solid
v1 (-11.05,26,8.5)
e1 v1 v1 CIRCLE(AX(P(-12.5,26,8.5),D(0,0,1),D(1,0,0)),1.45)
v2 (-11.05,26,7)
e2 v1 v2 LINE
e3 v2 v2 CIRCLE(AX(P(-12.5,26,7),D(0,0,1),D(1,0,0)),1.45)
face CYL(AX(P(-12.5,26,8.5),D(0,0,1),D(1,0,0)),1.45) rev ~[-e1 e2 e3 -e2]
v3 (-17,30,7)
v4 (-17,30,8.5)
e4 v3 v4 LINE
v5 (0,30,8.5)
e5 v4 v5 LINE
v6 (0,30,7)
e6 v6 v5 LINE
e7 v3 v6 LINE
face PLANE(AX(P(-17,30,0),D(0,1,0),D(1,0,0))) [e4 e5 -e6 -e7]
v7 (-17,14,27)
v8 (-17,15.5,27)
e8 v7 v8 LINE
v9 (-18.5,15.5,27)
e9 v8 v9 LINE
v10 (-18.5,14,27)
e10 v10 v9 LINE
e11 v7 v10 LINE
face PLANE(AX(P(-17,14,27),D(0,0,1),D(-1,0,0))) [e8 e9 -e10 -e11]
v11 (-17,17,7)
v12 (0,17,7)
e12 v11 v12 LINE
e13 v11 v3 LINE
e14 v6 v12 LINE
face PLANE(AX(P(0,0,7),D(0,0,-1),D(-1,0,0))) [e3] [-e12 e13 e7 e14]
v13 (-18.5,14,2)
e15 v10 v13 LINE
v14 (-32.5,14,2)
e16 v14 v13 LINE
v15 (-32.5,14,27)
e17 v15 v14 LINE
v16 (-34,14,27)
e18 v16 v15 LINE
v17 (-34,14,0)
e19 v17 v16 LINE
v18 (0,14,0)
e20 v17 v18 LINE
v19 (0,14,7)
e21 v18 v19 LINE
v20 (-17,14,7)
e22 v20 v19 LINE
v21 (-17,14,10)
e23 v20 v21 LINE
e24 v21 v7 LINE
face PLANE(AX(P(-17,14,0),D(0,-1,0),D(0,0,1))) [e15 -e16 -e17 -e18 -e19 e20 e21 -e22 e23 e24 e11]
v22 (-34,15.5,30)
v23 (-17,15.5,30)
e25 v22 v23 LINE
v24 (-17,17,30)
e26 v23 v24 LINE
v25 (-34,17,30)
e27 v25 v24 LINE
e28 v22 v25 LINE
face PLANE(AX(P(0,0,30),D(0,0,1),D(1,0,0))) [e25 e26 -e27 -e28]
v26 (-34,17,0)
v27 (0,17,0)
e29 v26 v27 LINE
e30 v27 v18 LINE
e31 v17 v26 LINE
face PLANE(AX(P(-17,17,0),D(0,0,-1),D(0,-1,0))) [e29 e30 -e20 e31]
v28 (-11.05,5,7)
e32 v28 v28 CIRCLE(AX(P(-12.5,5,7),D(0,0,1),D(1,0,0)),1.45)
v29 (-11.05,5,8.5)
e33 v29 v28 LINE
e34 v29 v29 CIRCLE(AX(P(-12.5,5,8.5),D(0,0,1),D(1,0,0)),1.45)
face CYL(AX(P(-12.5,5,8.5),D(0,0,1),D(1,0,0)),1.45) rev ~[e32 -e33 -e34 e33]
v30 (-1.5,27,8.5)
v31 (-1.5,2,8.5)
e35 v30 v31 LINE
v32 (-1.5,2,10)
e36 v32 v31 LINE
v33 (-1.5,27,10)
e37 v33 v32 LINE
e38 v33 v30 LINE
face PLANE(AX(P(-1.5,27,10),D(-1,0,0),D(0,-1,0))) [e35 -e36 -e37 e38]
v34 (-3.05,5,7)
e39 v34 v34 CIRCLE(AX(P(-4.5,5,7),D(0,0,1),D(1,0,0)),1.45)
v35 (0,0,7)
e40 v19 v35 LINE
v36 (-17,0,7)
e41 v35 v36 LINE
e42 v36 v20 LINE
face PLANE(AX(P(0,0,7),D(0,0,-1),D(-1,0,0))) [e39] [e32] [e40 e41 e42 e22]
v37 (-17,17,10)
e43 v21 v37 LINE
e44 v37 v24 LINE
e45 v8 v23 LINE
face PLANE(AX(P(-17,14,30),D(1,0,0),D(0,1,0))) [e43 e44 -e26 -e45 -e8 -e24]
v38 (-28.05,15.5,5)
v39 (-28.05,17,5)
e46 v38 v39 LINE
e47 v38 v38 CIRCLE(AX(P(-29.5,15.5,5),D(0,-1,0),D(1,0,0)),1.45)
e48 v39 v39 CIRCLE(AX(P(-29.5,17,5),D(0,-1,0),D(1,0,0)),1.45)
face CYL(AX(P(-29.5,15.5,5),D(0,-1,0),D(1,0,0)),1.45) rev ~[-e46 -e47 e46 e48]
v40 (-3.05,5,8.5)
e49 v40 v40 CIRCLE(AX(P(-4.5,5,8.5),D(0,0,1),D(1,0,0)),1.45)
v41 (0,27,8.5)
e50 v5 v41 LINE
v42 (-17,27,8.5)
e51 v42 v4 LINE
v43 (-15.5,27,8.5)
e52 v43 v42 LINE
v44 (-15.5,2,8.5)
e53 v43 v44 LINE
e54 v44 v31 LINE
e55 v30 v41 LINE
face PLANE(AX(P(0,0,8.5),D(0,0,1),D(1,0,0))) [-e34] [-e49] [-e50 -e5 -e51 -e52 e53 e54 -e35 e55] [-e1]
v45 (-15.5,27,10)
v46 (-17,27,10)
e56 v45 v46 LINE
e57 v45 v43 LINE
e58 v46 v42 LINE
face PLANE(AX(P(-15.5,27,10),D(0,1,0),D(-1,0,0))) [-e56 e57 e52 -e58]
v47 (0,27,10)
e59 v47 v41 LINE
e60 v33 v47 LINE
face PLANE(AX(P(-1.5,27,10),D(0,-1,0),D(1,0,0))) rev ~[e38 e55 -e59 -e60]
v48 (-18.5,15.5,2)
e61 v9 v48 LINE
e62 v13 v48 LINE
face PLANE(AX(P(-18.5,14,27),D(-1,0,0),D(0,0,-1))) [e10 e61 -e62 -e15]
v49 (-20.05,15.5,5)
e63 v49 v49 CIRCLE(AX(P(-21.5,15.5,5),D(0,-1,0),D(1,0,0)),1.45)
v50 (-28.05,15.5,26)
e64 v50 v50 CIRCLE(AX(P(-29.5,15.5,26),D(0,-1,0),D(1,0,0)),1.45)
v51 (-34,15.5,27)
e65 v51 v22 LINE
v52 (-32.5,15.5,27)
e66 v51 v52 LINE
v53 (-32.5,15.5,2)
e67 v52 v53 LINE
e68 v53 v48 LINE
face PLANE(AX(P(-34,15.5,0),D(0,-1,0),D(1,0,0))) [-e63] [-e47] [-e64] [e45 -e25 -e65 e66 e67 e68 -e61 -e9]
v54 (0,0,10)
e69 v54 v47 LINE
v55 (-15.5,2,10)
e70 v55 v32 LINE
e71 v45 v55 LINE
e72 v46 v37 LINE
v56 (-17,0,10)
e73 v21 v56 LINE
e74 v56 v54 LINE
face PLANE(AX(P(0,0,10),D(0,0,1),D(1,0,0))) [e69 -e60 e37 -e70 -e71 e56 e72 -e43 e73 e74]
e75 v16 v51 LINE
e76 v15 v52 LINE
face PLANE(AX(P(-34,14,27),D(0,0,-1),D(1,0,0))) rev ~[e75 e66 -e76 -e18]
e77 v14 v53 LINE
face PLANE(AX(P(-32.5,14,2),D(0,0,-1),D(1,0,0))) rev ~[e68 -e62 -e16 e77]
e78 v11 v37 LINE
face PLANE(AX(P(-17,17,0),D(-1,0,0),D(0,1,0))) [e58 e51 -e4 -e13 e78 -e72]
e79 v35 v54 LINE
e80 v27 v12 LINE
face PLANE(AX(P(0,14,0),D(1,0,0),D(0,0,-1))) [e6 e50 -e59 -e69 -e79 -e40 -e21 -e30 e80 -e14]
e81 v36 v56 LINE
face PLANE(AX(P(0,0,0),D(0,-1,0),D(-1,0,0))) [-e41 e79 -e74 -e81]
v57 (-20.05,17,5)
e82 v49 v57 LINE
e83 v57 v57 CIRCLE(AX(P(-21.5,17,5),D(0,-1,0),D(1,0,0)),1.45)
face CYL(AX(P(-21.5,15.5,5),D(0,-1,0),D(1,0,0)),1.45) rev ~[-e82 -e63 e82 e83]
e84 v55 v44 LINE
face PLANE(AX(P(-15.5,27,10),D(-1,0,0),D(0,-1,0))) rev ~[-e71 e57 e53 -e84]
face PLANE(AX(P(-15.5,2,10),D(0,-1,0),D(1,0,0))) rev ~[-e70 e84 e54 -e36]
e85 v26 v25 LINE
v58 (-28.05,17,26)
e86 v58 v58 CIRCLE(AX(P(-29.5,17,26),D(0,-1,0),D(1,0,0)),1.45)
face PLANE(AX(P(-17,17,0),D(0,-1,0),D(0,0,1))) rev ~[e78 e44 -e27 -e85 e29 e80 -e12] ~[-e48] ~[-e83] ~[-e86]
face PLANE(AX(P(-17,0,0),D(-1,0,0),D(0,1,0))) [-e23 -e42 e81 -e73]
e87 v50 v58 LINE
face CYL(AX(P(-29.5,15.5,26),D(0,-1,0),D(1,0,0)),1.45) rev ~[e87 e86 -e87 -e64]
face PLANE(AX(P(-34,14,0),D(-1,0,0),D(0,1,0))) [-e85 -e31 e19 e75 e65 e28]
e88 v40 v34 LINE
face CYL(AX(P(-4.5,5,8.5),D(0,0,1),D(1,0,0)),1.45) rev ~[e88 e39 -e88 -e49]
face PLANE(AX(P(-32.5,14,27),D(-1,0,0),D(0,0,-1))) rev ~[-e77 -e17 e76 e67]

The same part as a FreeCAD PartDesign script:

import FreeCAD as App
import Part
import Sketcher
from FreeCAD import Vector
Q = App.Units.Quantity

doc = App.newDocument("Part")
body = doc.addObject("PartDesign::Body", "Body")

# Sketch on XY plane
sketch1 = doc.addObject("Sketcher::SketchObject", "Sketch")
body.addObject(sketch1)
sketch1.AttachmentSupport = (doc.XY_Plane, [""])
sketch1.MapMode = "FlatFace"
sketch1.addGeometry(Part.LineSegment(Vector(-17, 17, 0), Vector(-34, 17, 0)), False)
sketch1.addGeometry(Part.LineSegment(Vector(-34, 17, 0), Vector(-34, 14, 0)), False)
sketch1.addGeometry(Part.LineSegment(Vector(-34, 14, 0), Vector(-17, 14, 0)), False)
sketch1.addGeometry(Part.LineSegment(Vector(-17, 14, 0), Vector(-17, 0, 0)), False)
sketch1.addGeometry(Part.LineSegment(Vector(-17, 0, 0), Vector(0, 0, 0)), False)
sketch1.addGeometry(Part.LineSegment(Vector(0, 0, 0), Vector(0, 30, 0)), False)
sketch1.addGeometry(Part.LineSegment(Vector(0, 30, 0), Vector(-17, 30, 0)), False)
sketch1.addGeometry(Part.LineSegment(Vector(-17, 30, 0), Vector(-17, 17, 0)), False)
sketch1.addConstraint(Sketcher.Constraint("Coincident", 0, 2, 1, 1))
sketch1.addConstraint(Sketcher.Constraint("Coincident", 1, 2, 2, 1))
sketch1.addConstraint(Sketcher.Constraint("Coincident", 2, 2, 3, 1))
sketch1.addConstraint(Sketcher.Constraint("Coincident", 3, 2, 4, 1))
sketch1.addConstraint(Sketcher.Constraint("Coincident", 4, 2, 5, 1))
sketch1.addConstraint(Sketcher.Constraint("Coincident", 5, 2, 6, 1))
sketch1.addConstraint(Sketcher.Constraint("Coincident", 6, 2, 7, 1))
sketch1.addConstraint(Sketcher.Constraint("Coincident", 7, 2, 0, 1))
sketch1.addConstraint(Sketcher.Constraint("Horizontal", 0))
sketch1.addConstraint(Sketcher.Constraint("Vertical", 1))
sketch1.addConstraint(Sketcher.Constraint("Horizontal", 2))
sketch1.addConstraint(Sketcher.Constraint("Vertical", 3))
sketch1.addConstraint(Sketcher.Constraint("Horizontal", 4))
sketch1.addConstraint(Sketcher.Constraint("Vertical", 5))
sketch1.addConstraint(Sketcher.Constraint("Horizontal", 6))
sketch1.addConstraint(Sketcher.Constraint("Vertical", 7))
sketch1.addConstraint(Sketcher.Constraint("Coincident", 4, 2, -1, 1))
sketch1.addConstraint(Sketcher.Constraint("Vertical", 3, 2, 6, 2))
sketch1.addConstraint(Sketcher.Constraint("Equal", 2, 4))
sketch1.addConstraint(Sketcher.Constraint("DistanceX", 0, 2, 0, 1, Q("17 mm")))
sketch1.addConstraint(Sketcher.Constraint("DistanceY", 1, 2, 1, 1, Q("3 mm")))
sketch1.addConstraint(Sketcher.Constraint("DistanceY", 3, 2, 3, 1, Q("14 mm")))
sketch1.addConstraint(Sketcher.Constraint("DistanceY", 7, 2, 7, 1, Q("13 mm")))
pad1 = doc.addObject("PartDesign::Pad", "Pad")
body.addObject(pad1)
pad1.Profile = sketch1
pad1.Length = 30

# Sketch on XY plane
sketch2 = doc.addObject("Sketcher::SketchObject", "Sketch001")
body.addObject(sketch2)
sketch2.AttachmentSupport = (doc.XY_Plane, [""])
sketch2.MapMode = "FlatFace"
sketch2.addGeometry(Part.LineSegment(Vector(-17, 0, 0), Vector(-17, 30, 0)), False)
sketch2.addGeometry(Part.LineSegment(Vector(-17, 30, 0), Vector(0, 30, 0)), False)
sketch2.addGeometry(Part.LineSegment(Vector(0, 30, 0), Vector(0, 0, 0)), False)
sketch2.addGeometry(Part.LineSegment(Vector(0, 0, 0), Vector(-17, 0, 0)), False)
sketch2.addConstraint(Sketcher.Constraint("Coincident", 0, 2, 1, 1))
sketch2.addConstraint(Sketcher.Constraint("Coincident", 1, 2, 2, 1))
sketch2.addConstraint(Sketcher.Constraint("Coincident", 2, 2, 3, 1))
sketch2.addConstraint(Sketcher.Constraint("Coincident", 3, 2, 0, 1))
sketch2.addConstraint(Sketcher.Constraint("Vertical", 0))
sketch2.addConstraint(Sketcher.Constraint("Horizontal", 1))
sketch2.addConstraint(Sketcher.Constraint("Vertical", 2))
sketch2.addConstraint(Sketcher.Constraint("Horizontal", 3))
sketch2.addConstraint(Sketcher.Constraint("Coincident", 2, 2, -1, 1))
sketch2.addConstraint(Sketcher.Constraint("DistanceX", 1, 1, 1, 2, Q("17 mm")))
sketch2.addConstraint(Sketcher.Constraint("DistanceY", 0, 1, 0, 2, Q("30 mm")))
pocket1 = doc.addObject("PartDesign::Pocket", "Pocket")
body.addObject(pocket1)
pocket1.Profile = sketch2
pocket1.Length = 7
pocket1.Reversed = True

# Sketch on XY plane
sketch3 = doc.addObject("Sketcher::SketchObject", "Sketch002")
body.addObject(sketch3)
sketch3.AttachmentSupport = (doc.XY_Plane, [""])
sketch3.MapMode = "FlatFace"
sketch3.AttachmentOffset = App.Placement(Vector(0, 0, 30), App.Rotation())
sketch3.addGeometry(Part.LineSegment(Vector(-17, 30, 0), Vector(-17, 0, 0)), False)
sketch3.addGeometry(Part.LineSegment(Vector(-17, 0, 0), Vector(0, 0, 0)), False)
sketch3.addGeometry(Part.LineSegment(Vector(0, 0, 0), Vector(0, 30, 0)), False)
sketch3.addGeometry(Part.LineSegment(Vector(0, 30, 0), Vector(-17, 30, 0)), False)
sketch3.addConstraint(Sketcher.Constraint("Coincident", 0, 2, 1, 1))
sketch3.addConstraint(Sketcher.Constraint("Coincident", 1, 2, 2, 1))
sketch3.addConstraint(Sketcher.Constraint("Coincident", 2, 2, 3, 1))
sketch3.addConstraint(Sketcher.Constraint("Coincident", 3, 2, 0, 1))
sketch3.addConstraint(Sketcher.Constraint("Vertical", 0))
sketch3.addConstraint(Sketcher.Constraint("Horizontal", 1))
sketch3.addConstraint(Sketcher.Constraint("Vertical", 2))
sketch3.addConstraint(Sketcher.Constraint("Horizontal", 3))
sketch3.addConstraint(Sketcher.Constraint("Coincident", 1, 2, -1, 1))
sketch3.addConstraint(Sketcher.Constraint("DistanceX", 1, 1, 1, 2, Q("17 mm")))
sketch3.addConstraint(Sketcher.Constraint("DistanceY", 0, 2, 0, 1, Q("30 mm")))
pocket2 = doc.addObject("PartDesign::Pocket", "Pocket001")
body.addObject(pocket2)
pocket2.Profile = sketch3
pocket2.Length = 20

# Sketch on XZ plane
sketch4 = doc.addObject("Sketcher::SketchObject", "Sketch003")
body.addObject(sketch4)
sketch4.AttachmentSupport = (doc.XZ_Plane, [""])
sketch4.MapMode = "FlatFace"
sketch4.AttachmentOffset = App.Placement(Vector(0, 0, -14), App.Rotation())
sketch4.addGeometry(Part.LineSegment(Vector(-34, 30, 0), Vector(-34, 27, 0)), False)
sketch4.addGeometry(Part.LineSegment(Vector(-34, 27, 0), Vector(-32.5, 27, 0)), False)
sketch4.addGeometry(Part.LineSegment(Vector(-32.5, 27, 0), Vector(-32.5, 2, 0)), False)
sketch4.addGeometry(Part.LineSegment(Vector(-32.5, 2, 0), Vector(-18.5, 2, 0)), False)
sketch4.addGeometry(Part.LineSegment(Vector(-18.5, 2, 0), Vector(-18.5, 27, 0)), False)
sketch4.addGeometry(Part.LineSegment(Vector(-18.5, 27, 0), Vector(-17, 27, 0)), False)
sketch4.addGeometry(Part.LineSegment(Vector(-17, 27, 0), Vector(-17, 30, 0)), False)
sketch4.addGeometry(Part.LineSegment(Vector(-17, 30, 0), Vector(-34, 30, 0)), False)
sketch4.addConstraint(Sketcher.Constraint("Coincident", 0, 2, 1, 1))
sketch4.addConstraint(Sketcher.Constraint("Coincident", 1, 2, 2, 1))
sketch4.addConstraint(Sketcher.Constraint("Coincident", 2, 2, 3, 1))
sketch4.addConstraint(Sketcher.Constraint("Coincident", 3, 2, 4, 1))
sketch4.addConstraint(Sketcher.Constraint("Coincident", 4, 2, 5, 1))
sketch4.addConstraint(Sketcher.Constraint("Coincident", 5, 2, 6, 1))
sketch4.addConstraint(Sketcher.Constraint("Coincident", 6, 2, 7, 1))
sketch4.addConstraint(Sketcher.Constraint("Coincident", 7, 2, 0, 1))
sketch4.addConstraint(Sketcher.Constraint("Vertical", 0))
sketch4.addConstraint(Sketcher.Constraint("Horizontal", 1))
sketch4.addConstraint(Sketcher.Constraint("Vertical", 2))
sketch4.addConstraint(Sketcher.Constraint("Horizontal", 3))
sketch4.addConstraint(Sketcher.Constraint("Vertical", 4))
sketch4.addConstraint(Sketcher.Constraint("Horizontal", 5))
sketch4.addConstraint(Sketcher.Constraint("Vertical", 6))
sketch4.addConstraint(Sketcher.Constraint("Horizontal", 7))
sketch4.addConstraint(Sketcher.Constraint("Horizontal", 1, 2, 4, 2))
sketch4.addConstraint(Sketcher.Constraint("Equal", 1, 5))
sketch4.addConstraint(Sketcher.Constraint("DistanceX", 3, 1, 3, 2, Q("14 mm")))
sketch4.addConstraint(Sketcher.Constraint("DistanceY", 2, 2, 2, 1, Q("25 mm")))
sketch4.addConstraint(Sketcher.Constraint("DistanceX", 1, 1, 1, 2, Q("1.5 mm")))
sketch4.addConstraint(Sketcher.Constraint("DistanceY", -1, 1, 2, 2, Q("2 mm")))
sketch4.addConstraint(Sketcher.Constraint("DistanceY", 0, 2, 0, 1, Q("3 mm")))
sketch4.addConstraint(Sketcher.Constraint("DistanceX", 0, 2, -1, 1, Q("34 mm")))
pocket3 = doc.addObject("PartDesign::Pocket", "Pocket002")
body.addObject(pocket3)
pocket3.Profile = sketch4
pocket3.Length = 1.5

# Sketch on XY plane
sketch5 = doc.addObject("Sketcher::SketchObject", "Sketch004")
body.addObject(sketch5)
sketch5.AttachmentSupport = (doc.XY_Plane, [""])
sketch5.MapMode = "FlatFace"
sketch5.AttachmentOffset = App.Placement(Vector(0, 0, 10), App.Rotation())
sketch5.addGeometry(Part.LineSegment(Vector(0, 27, 0), Vector(0, 30, 0)), False)
sketch5.addGeometry(Part.LineSegment(Vector(0, 30, 0), Vector(-17, 30, 0)), False)
sketch5.addGeometry(Part.LineSegment(Vector(-17, 30, 0), Vector(-17, 27, 0)), False)
sketch5.addGeometry(Part.LineSegment(Vector(-17, 27, 0), Vector(-15.5, 27, 0)), False)
sketch5.addGeometry(Part.LineSegment(Vector(-15.5, 27, 0), Vector(-15.5, 2, 0)), False)
sketch5.addGeometry(Part.LineSegment(Vector(-15.5, 2, 0), Vector(-1.5, 2, 0)), False)
sketch5.addGeometry(Part.LineSegment(Vector(-1.5, 2, 0), Vector(-1.5, 27, 0)), False)
sketch5.addGeometry(Part.LineSegment(Vector(-1.5, 27, 0), Vector(0, 27, 0)), False)
sketch5.addConstraint(Sketcher.Constraint("Coincident", 0, 2, 1, 1))
sketch5.addConstraint(Sketcher.Constraint("Coincident", 1, 2, 2, 1))
sketch5.addConstraint(Sketcher.Constraint("Coincident", 2, 2, 3, 1))
sketch5.addConstraint(Sketcher.Constraint("Coincident", 3, 2, 4, 1))
sketch5.addConstraint(Sketcher.Constraint("Coincident", 4, 2, 5, 1))
sketch5.addConstraint(Sketcher.Constraint("Coincident", 5, 2, 6, 1))
sketch5.addConstraint(Sketcher.Constraint("Coincident", 6, 2, 7, 1))
sketch5.addConstraint(Sketcher.Constraint("Coincident", 7, 2, 0, 1))
sketch5.addConstraint(Sketcher.Constraint("Vertical", 0))
sketch5.addConstraint(Sketcher.Constraint("Horizontal", 1))
sketch5.addConstraint(Sketcher.Constraint("Vertical", 2))
sketch5.addConstraint(Sketcher.Constraint("Horizontal", 3))
sketch5.addConstraint(Sketcher.Constraint("Vertical", 4))
sketch5.addConstraint(Sketcher.Constraint("Horizontal", 5))
sketch5.addConstraint(Sketcher.Constraint("Vertical", 6))
sketch5.addConstraint(Sketcher.Constraint("Horizontal", 7))
sketch5.addConstraint(Sketcher.Constraint("PointOnObject", 0, 2, -2))
sketch5.addConstraint(Sketcher.Constraint("Horizontal", 3, 2, 6, 2))
sketch5.addConstraint(Sketcher.Constraint("Equal", 3, 7))
sketch5.addConstraint(Sketcher.Constraint("DistanceX", 5, 1, 5, 2, Q("14 mm")))
sketch5.addConstraint(Sketcher.Constraint("DistanceY", 4, 2, 4, 1, Q("25 mm")))
sketch5.addConstraint(Sketcher.Constraint("DistanceX", 3, 1, 3, 2, Q("1.5 mm")))
sketch5.addConstraint(Sketcher.Constraint("DistanceY", -1, 1, 4, 2, Q("2 mm")))
sketch5.addConstraint(Sketcher.Constraint("DistanceY", 0, 1, 0, 2, Q("3 mm")))
pocket4 = doc.addObject("PartDesign::Pocket", "Pocket003")
body.addObject(pocket4)
pocket4.Profile = sketch5
pocket4.Length = 1.5

# Sketch on XZ plane
sketch6 = doc.addObject("Sketcher::SketchObject", "Sketch005")
body.addObject(sketch6)
sketch6.AttachmentSupport = (doc.XZ_Plane, [""])
sketch6.MapMode = "FlatFace"
sketch6.AttachmentOffset = App.Placement(Vector(0, 0, -15.5), App.Rotation())
sketch6.addGeometry(Part.Circle(Vector(-29.5, 26, 0), Vector(0, 0, 1), 1.4), False)
sketch6.addGeometry(Part.Circle(Vector(-29.5, 5, 0), Vector(0, 0, 1), 1.4), False)
sketch6.addGeometry(Part.Circle(Vector(-21.5, 5, 0), Vector(0, 0, 1), 1.4), False)
sketch6.addConstraint(Sketcher.Constraint("Equal", 0, 1))
sketch6.addConstraint(Sketcher.Constraint("Equal", 1, 2))
sketch6.addConstraint(Sketcher.Constraint("Horizontal", 1, 3, 2, 3))
sketch6.addConstraint(Sketcher.Constraint("Vertical", 0, 3, 1, 3))
sketch6.addConstraint(Sketcher.Constraint("Diameter", 0, Q("2.9 mm")))
sketch6.addConstraint(Sketcher.Constraint("DistanceY", 1, 3, 0, 3, Q("21 mm")))
sketch6.addConstraint(Sketcher.Constraint("DistanceX", 1, 3, 2, 3, Q("8 mm")))
sketch6.addConstraint(Sketcher.Constraint("DistanceY", -1, 1, 0, 3, Q("26 mm")))
sketch6.addConstraint(Sketcher.Constraint("DistanceX", 0, 3, -1, 1, Q("29.5 mm")))
pocket5 = doc.addObject("PartDesign::Pocket", "Pocket004")
body.addObject(pocket5)
pocket5.Profile = sketch6
pocket5.Type = "ThroughAll"

# Sketch on XY plane
sketch7 = doc.addObject("Sketcher::SketchObject", "Sketch006")
body.addObject(sketch7)
sketch7.AttachmentSupport = (doc.XY_Plane, [""])
sketch7.MapMode = "FlatFace"
sketch7.AttachmentOffset = App.Placement(Vector(0, 0, 8.5), App.Rotation())
sketch7.addGeometry(Part.Circle(Vector(-12.5, 5, 0), Vector(0, 0, 1), 1.4), False)
sketch7.addGeometry(Part.Circle(Vector(-4.5, 5, 0), Vector(0, 0, 1), 1.4), False)
sketch7.addGeometry(Part.Circle(Vector(-12.5, 26, 0), Vector(0, 0, 1), 1.4), False)
sketch7.addConstraint(Sketcher.Constraint("Equal", 0, 1))
sketch7.addConstraint(Sketcher.Constraint("Equal", 1, 2))
sketch7.addConstraint(Sketcher.Constraint("Horizontal", 0, 3, 1, 3))
sketch7.addConstraint(Sketcher.Constraint("Vertical", 0, 3, 2, 3))
sketch7.addConstraint(Sketcher.Constraint("Diameter", 0, Q("2.9 mm")))
sketch7.addConstraint(Sketcher.Constraint("DistanceX", 0, 3, 1, 3, Q("8 mm")))
sketch7.addConstraint(Sketcher.Constraint("DistanceY", 0, 3, 2, 3, Q("21 mm")))
sketch7.addConstraint(Sketcher.Constraint("DistanceY", -1, 1, 0, 3, Q("5 mm")))
sketch7.addConstraint(Sketcher.Constraint("DistanceX", 0, 3, -1, 1, Q("12.5 mm")))
pocket6 = doc.addObject("PartDesign::Pocket", "Pocket005")
body.addObject(pocket6)
pocket6.Profile = sketch7
pocket6.Type = "ThroughAll"

# Sketch on YZ plane
sketch8 = doc.addObject("Sketcher::SketchObject", "Sketch007")
body.addObject(sketch8)
sketch8.AttachmentSupport = (doc.YZ_Plane, [""])
sketch8.MapMode = "FlatFace"
sketch8.AttachmentOffset = App.Placement(Vector(0, 0, -17), App.Rotation())
sketch8.addGeometry(Part.LineSegment(Vector(14, 7, 0), Vector(14, 0, 0)), False)
sketch8.addGeometry(Part.LineSegment(Vector(14, 0, 0), Vector(17, 0, 0)), False)
sketch8.addGeometry(Part.LineSegment(Vector(17, 0, 0), Vector(17, 7, 0)), False)
sketch8.addGeometry(Part.LineSegment(Vector(17, 7, 0), Vector(14, 7, 0)), False)
sketch8.addConstraint(Sketcher.Constraint("Coincident", 0, 2, 1, 1))
sketch8.addConstraint(Sketcher.Constraint("Coincident", 1, 2, 2, 1))
sketch8.addConstraint(Sketcher.Constraint("Coincident", 2, 2, 3, 1))
sketch8.addConstraint(Sketcher.Constraint("Coincident", 3, 2, 0, 1))
sketch8.addConstraint(Sketcher.Constraint("Vertical", 0))
sketch8.addConstraint(Sketcher.Constraint("Horizontal", 1))
sketch8.addConstraint(Sketcher.Constraint("Vertical", 2))
sketch8.addConstraint(Sketcher.Constraint("Horizontal", 3))
sketch8.addConstraint(Sketcher.Constraint("PointOnObject", 0, 2, -1))
sketch8.addConstraint(Sketcher.Constraint("DistanceX", 1, 1, 1, 2, Q("3 mm")))
sketch8.addConstraint(Sketcher.Constraint("DistanceY", 0, 2, 0, 1, Q("7 mm")))
sketch8.addConstraint(Sketcher.Constraint("DistanceX", -1, 1, 0, 2, Q("14 mm")))
pad2 = doc.addObject("PartDesign::Pad", "Pad001")
body.addObject(pad2)
pad2.Profile = sketch8
pad2.Length = 17

doc.recompute()
